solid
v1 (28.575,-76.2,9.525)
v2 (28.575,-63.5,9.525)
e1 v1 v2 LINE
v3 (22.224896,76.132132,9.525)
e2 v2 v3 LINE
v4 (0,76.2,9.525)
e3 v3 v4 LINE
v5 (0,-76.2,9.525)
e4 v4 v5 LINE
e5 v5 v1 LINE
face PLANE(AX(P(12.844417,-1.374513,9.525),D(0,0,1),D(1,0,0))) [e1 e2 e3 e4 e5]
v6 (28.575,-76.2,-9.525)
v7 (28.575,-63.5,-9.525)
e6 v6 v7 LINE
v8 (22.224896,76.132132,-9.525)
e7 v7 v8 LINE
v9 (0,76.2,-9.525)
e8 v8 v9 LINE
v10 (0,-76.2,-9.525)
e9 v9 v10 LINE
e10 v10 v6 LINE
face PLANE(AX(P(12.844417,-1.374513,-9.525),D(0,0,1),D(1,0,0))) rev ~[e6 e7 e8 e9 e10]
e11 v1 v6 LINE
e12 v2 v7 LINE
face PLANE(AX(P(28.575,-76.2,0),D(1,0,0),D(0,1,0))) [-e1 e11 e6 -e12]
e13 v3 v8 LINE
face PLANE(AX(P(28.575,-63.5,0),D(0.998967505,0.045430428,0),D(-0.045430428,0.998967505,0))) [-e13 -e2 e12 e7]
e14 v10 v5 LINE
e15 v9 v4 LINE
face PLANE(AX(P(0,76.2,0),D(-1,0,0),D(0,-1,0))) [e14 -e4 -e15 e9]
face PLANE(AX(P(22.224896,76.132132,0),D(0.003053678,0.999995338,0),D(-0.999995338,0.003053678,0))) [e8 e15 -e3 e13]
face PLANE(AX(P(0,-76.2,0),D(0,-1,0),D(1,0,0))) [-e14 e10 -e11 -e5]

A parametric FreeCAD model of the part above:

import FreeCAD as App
import Part
import Sketcher

V = App.Vector
Q = App.Units.Quantity

doc = App.newDocument("Part")
body = doc.addObject("PartDesign::Body", "Body")

# Sketch on XY plane
sketch1 = body.newObject("Sketcher::SketchObject", "Sketch")
sketch1.AttachmentSupport = (doc.getObject("XY_Plane"), [""])
sketch1.MapMode = "FlatFace"
sketch1.addGeometry([
    Part.LineSegment(V(22, 76, 0), V(0, 76, 0)),  # 0
    Part.LineSegment(V(0, 76, 0), V(0, -76, 0)),  # 1
    Part.LineSegment(V(0, -76, 0), V(29, -76, 0)),  # 2
    Part.LineSegment(V(29, -76, 0), V(29, -64, 0)),  # 3
    Part.LineSegment(V(29, -64, 0), V(22, 76, 0)),  # 4
], False)
sketch1.addConstraint([
    Sketcher.Constraint("Coincident", 0, 2, 1, 1),
    Sketcher.Constraint("Coincident", 1, 2, 2, 1),
    Sketcher.Constraint("Coincident", 2, 2, 3, 1),
    Sketcher.Constraint("Coincident", 3, 2, 4, 1),
    Sketcher.Constraint("Coincident", 4, 2, 0, 1),
    Sketcher.Constraint("Vertical", 1),
    Sketcher.Constraint("Horizontal", 2),
    Sketcher.Constraint("Vertical", 3),
    Sketcher.Constraint("Symmetric", 0, 2, 1, 2, -1, 1),
    Sketcher.Constraint("DistanceY", 1, 2, 1, 1, Q("6 in")),
    Sketcher.Constraint("DistanceY", 3, 1, 3, 2, Q("0.5 in")),
    Sketcher.Constraint("DistanceX", 2, 1, 2, 2, Q("1.125 in")),
    Sketcher.Constraint("Distance", 0, Q("0.875 in")),
    Sketcher.Constraint("Distance", 4, Q("139.77645 mm")),
])
pad1 = body.newObject("PartDesign::Pad", "Pad")
pad1.Profile = sketch1
pad1.Type = "TwoLengths"
pad1.Length = Q("0.375 in")
pad1.Length2 = Q("0.375 in")

doc.recompute()
